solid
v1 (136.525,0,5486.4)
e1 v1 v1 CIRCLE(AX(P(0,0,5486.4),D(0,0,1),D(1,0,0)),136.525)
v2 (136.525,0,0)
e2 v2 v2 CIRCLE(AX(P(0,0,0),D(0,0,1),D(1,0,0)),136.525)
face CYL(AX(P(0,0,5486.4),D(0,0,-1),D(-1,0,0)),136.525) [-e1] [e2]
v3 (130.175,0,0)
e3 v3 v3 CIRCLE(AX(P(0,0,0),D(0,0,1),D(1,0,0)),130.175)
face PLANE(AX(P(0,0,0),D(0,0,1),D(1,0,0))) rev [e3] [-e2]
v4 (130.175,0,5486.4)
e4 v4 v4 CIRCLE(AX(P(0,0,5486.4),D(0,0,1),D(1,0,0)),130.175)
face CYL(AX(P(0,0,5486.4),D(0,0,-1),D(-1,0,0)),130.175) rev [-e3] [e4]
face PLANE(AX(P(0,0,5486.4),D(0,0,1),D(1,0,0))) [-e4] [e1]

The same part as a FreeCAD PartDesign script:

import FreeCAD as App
import Part
import Sketcher

V = App.Vector
Q = App.Units.Quantity

doc = App.newDocument("Part")
body = doc.addObject("PartDesign::Body", "Body")

# Sketch on XY plane
sketch1 = body.newObject("Sketcher::SketchObject", "Sketch")
sketch1.AttachmentSupport = (doc.getObject("XY_Plane"), [""])
sketch1.MapMode = "FlatFace"
sketch1.addGeometry([
    Part.Circle(V(0, 0, 0), V(0, 0, 1), 137),
    Part.Circle(V(0, 0, 0), V(0, 0, 1), 130),
], False)
sketch1.addConstraint([
    Sketcher.Constraint("Coincident", 0, 3, -1, 1),
    Sketcher.Constraint("Coincident", 1, 3, -1, 1),
    Sketcher.Constraint("Diameter", 0, Q("10.75 in")),
    Sketcher.Constraint("Diameter", 1, Q("10.25 in")),
])
pad1 = body.newObject("PartDesign::Pad", "Pad")
pad1.Profile = sketch1
pad1.Length = Q("216 in")

doc.recompute()
